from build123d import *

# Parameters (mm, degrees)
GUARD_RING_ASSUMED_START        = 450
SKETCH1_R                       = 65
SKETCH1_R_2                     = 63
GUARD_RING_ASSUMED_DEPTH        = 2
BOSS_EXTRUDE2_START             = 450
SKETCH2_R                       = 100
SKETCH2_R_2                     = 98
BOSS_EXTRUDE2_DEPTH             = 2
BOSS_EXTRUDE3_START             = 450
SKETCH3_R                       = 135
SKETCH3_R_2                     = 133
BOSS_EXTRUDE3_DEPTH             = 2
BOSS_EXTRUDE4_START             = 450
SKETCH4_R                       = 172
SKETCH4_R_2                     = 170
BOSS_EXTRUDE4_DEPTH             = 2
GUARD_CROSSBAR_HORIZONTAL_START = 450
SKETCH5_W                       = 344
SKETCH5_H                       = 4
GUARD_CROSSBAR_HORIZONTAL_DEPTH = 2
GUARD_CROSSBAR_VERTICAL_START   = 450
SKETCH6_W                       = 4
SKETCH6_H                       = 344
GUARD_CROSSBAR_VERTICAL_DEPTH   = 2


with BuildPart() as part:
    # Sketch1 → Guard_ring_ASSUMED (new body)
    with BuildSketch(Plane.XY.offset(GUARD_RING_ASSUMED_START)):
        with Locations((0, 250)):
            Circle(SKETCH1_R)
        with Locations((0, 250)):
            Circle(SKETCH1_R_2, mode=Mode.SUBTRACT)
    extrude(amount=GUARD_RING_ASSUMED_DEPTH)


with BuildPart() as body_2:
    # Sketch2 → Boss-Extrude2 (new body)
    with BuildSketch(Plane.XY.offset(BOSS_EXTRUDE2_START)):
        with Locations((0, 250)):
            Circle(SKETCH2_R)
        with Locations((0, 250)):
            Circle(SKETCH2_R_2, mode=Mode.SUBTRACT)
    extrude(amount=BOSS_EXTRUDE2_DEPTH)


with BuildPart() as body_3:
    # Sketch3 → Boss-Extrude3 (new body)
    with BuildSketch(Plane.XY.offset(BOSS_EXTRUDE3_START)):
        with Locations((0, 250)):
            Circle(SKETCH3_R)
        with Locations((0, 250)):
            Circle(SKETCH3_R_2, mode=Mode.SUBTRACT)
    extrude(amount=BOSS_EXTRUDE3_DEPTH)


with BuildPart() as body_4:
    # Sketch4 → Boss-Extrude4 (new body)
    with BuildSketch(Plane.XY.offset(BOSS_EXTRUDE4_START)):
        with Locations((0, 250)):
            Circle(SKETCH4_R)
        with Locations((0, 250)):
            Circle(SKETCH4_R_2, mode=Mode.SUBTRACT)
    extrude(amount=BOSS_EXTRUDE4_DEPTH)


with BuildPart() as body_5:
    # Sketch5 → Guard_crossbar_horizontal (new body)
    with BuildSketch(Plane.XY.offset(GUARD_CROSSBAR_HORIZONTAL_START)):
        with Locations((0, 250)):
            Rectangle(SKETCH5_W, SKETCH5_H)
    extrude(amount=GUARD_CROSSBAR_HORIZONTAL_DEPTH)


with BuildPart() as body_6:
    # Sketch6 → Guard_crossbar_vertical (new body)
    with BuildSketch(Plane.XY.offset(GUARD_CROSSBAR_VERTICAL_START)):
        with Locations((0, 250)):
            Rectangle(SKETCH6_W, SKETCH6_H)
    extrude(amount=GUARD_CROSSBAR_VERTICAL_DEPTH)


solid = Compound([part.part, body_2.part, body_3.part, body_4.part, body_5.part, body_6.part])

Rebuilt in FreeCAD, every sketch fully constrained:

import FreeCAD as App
import Part
import Sketcher
from FreeCAD import Vector
Q = App.Units.Quantity

doc = App.newDocument("Part")
body = doc.addObject("PartDesign::Body", "Body")

# Sketch on XY plane
sketch1 = doc.addObject("Sketcher::SketchObject", "Sketch")
body.addObject(sketch1)
sketch1.AttachmentSupport = (doc.XY_Plane, [""])
sketch1.MapMode = "FlatFace"
sketch1.AttachmentOffset = App.Placement(Vector(0, 0, 450), App.Rotation())
sketch1.addGeometry([
    Part.Circle(Vector(0, 250, 0), Vector(0, 0, 1), 65),
    Part.Circle(Vector(0, 250, 0), Vector(0, 0, 1), 63),
], False)
sketch1.addConstraint([
    Sketcher.Constraint("Coincident", 1, 3, 0, 3),
    Sketcher.Constraint("PointOnObject", 0, 3, -2),
    Sketcher.Constraint("Diameter", 0, Q("130 mm")),
    Sketcher.Constraint("Diameter", 1, Q("126 mm")),
    Sketcher.Constraint("DistanceY", -1, 1, 0, 3, Q("250 mm")),
])
pad1 = doc.addObject("PartDesign::Pad", "Pad")
body.addObject(pad1)
pad1.Profile = sketch1
pad1.Length = 2
body2 = doc.addObject("PartDesign::Body", "Body001")

# Sketch on XY plane
sketch2 = doc.addObject("Sketcher::SketchObject", "Sketch001")
body2.addObject(sketch2)
sketch2.AttachmentSupport = (doc.getObject("XY_Plane001"), [""])
sketch2.MapMode = "FlatFace"
sketch2.AttachmentOffset = App.Placement(Vector(0, 0, 450), App.Rotation())
sketch2.addGeometry([
    Part.Circle(Vector(0, 250, 0), Vector(0, 0, 1), 100),
    Part.Circle(Vector(0, 250, 0), Vector(0, 0, 1), 98),
], False)
sketch2.addConstraint([
    Sketcher.Constraint("Coincident", 1, 3, 0, 3),
    Sketcher.Constraint("PointOnObject", 0, 3, -2),
    Sketcher.Constraint("Diameter", 0, Q("200 mm")),
    Sketcher.Constraint("Diameter", 1, Q("196 mm")),
    Sketcher.Constraint("DistanceY", -1, 1, 0, 3, Q("250 mm")),
])
pad2 = doc.addObject("PartDesign::Pad", "Pad001")
body2.addObject(pad2)
pad2.Profile = sketch2
pad2.Length = 2
body3 = doc.addObject("PartDesign::Body", "Body002")

# Sketch on XY plane
sketch3 = doc.addObject("Sketcher::SketchObject", "Sketch002")
body3.addObject(sketch3)
sketch3.AttachmentSupport = (doc.getObject("XY_Plane002"), [""])
sketch3.MapMode = "FlatFace"
sketch3.AttachmentOffset = App.Placement(Vector(0, 0, 450), App.Rotation())
sketch3.addGeometry([
    Part.Circle(Vector(0, 250, 0), Vector(0, 0, 1), 135),
    Part.Circle(Vector(0, 250, 0), Vector(0, 0, 1), 133),
], False)
sketch3.addConstraint([
    Sketcher.Constraint("Coincident", 1, 3, 0, 3),
    Sketcher.Constraint("PointOnObject", 0, 3, -2),
    Sketcher.Constraint("Diameter", 0, Q("270 mm")),
    Sketcher.Constraint("Diameter", 1, Q("266 mm")),
    Sketcher.Constraint("DistanceY", -1, 1, 0, 3, Q("250 mm")),
])
pad3 = doc.addObject("PartDesign::Pad", "Pad002")
body3.addObject(pad3)
pad3.Profile = sketch3
pad3.Length = 2
body4 = doc.addObject("PartDesign::Body", "Body003")

# Sketch on XY plane
sketch4 = doc.addObject("Sketcher::SketchObject", "Sketch003")
body4.addObject(sketch4)
sketch4.AttachmentSupport = (doc.getObject("XY_Plane003"), [""])
sketch4.MapMode = "FlatFace"
sketch4.AttachmentOffset = App.Placement(Vector(0, 0, 450), App.Rotation())
sketch4.addGeometry([
    Part.Circle(Vector(0, 250, 0), Vector(0, 0, 1), 172),
    Part.Circle(Vector(0, 250, 0), Vector(0, 0, 1), 170),
], False)
sketch4.addConstraint([
    Sketcher.Constraint("Coincident", 1, 3, 0, 3),
    Sketcher.Constraint("PointOnObject", 0, 3, -2),
    Sketcher.Constraint("Diameter", 0, Q("344 mm")),
    Sketcher.Constraint("Diameter", 1, Q("340 mm")),
    Sketcher.Constraint("DistanceY", -1, 1, 0, 3, Q("250 mm")),
])
pad4 = doc.addObject("PartDesign::Pad", "Pad003")
body4.addObject(pad4)
pad4.Profile = sketch4
pad4.Length = 2
body5 = doc.addObject("PartDesign::Body", "Body004")

# Sketch on XY plane
sketch5 = doc.addObject("Sketcher::SketchObject", "Sketch004")
body5.addObject(sketch5)
sketch5.AttachmentSupport = (doc.getObject("XY_Plane004"), [""])
sketch5.MapMode = "FlatFace"
sketch5.AttachmentOffset = App.Placement(Vector(0, 0, 450), App.Rotation())
sketch5.addGeometry([
    Part.LineSegment(Vector(-172, 252, 0), Vector(-172, 248, 0)),
    Part.LineSegment(Vector(-172, 248, 0), Vector(172, 248, 0)),
    Part.LineSegment(Vector(172, 248, 0), Vector(172, 252, 0)),
    Part.LineSegment(Vector(172, 252, 0), Vector(-172, 252, 0)),
], False)
sketch5.addConstraint([
    Sketcher.Constraint("Coincident", 0, 2, 1, 1),
    Sketcher.Constraint("Coincident", 1, 2, 2, 1),
    Sketcher.Constraint("Coincident", 2, 2, 3, 1),
    Sketcher.Constraint("Coincident", 3, 2, 0, 1),
    Sketcher.Constraint("Vertical", 0),
    Sketcher.Constraint("Horizontal", 1),
    Sketcher.Constraint("Vertical", 2),
    Sketcher.Constraint("Horizontal", 3),
    Sketcher.Constraint("DistanceX", 1, 1, 1, 2, Q("344 mm")),
    Sketcher.Constraint("DistanceY", 0, 2, 0, 1, Q("4 mm")),
    Sketcher.Constraint("DistanceX", 0, 2, -1, 1, Q("172 mm")),
    Sketcher.Constraint("DistanceY", -1, 1, 0, 2, Q("248 mm")),
])
pad5 = doc.addObject("PartDesign::Pad", "Pad004")
body5.addObject(pad5)
pad5.Profile = sketch5
pad5.Length = 2
body6 = doc.addObject("PartDesign::Body", "Body005")

# Sketch on XY plane
sketch6 = doc.addObject("Sketcher::SketchObject", "Sketch005")
body6.addObject(sketch6)
sketch6.AttachmentSupport = (doc.getObject("XY_Plane005"), [""])
sketch6.MapMode = "FlatFace"
sketch6.AttachmentOffset = App.Placement(Vector(0, 0, 450), App.Rotation())
sketch6.addGeometry([
    Part.LineSegment(Vector(-2, 422, 0), Vector(-2, 78, 0)),
    Part.LineSegment(Vector(-2, 78, 0), Vector(2, 78, 0)),
    Part.LineSegment(Vector(2, 78, 0), Vector(2, 422, 0)),
    Part.LineSegment(Vector(2, 422, 0), Vector(-2, 422, 0)),
], False)
sketch6.addConstraint([
    Sketcher.Constraint("Coincident", 0, 2, 1, 1),
    Sketcher.Constraint("Coincident", 1, 2, 2, 1),
    Sketcher.Constraint("Coincident", 2, 2, 3, 1),
    Sketcher.Constraint("Coincident", 3, 2, 0, 1),
    Sketcher.Constraint("Vertical", 0),
    Sketcher.Constraint("Horizontal", 1),
    Sketcher.Constraint("Vertical", 2),
    Sketcher.Constraint("Horizontal", 3),
    Sketcher.Constraint("DistanceX", 1, 1, 1, 2, Q("4 mm")),
    Sketcher.Constraint("DistanceY", 0, 2, 0, 1, Q("344 mm")),
    Sketcher.Constraint("DistanceX", 0, 2, -1, 1, Q("2 mm")),
    Sketcher.Constraint("DistanceY", -1, 1, 0, 2, Q("78 mm")),
])
pad6 = doc.addObject("PartDesign::Pad", "Pad005")
body6.addObject(pad6)
pad6.Profile = sketch6
pad6.Length = 2

doc.recompute()
